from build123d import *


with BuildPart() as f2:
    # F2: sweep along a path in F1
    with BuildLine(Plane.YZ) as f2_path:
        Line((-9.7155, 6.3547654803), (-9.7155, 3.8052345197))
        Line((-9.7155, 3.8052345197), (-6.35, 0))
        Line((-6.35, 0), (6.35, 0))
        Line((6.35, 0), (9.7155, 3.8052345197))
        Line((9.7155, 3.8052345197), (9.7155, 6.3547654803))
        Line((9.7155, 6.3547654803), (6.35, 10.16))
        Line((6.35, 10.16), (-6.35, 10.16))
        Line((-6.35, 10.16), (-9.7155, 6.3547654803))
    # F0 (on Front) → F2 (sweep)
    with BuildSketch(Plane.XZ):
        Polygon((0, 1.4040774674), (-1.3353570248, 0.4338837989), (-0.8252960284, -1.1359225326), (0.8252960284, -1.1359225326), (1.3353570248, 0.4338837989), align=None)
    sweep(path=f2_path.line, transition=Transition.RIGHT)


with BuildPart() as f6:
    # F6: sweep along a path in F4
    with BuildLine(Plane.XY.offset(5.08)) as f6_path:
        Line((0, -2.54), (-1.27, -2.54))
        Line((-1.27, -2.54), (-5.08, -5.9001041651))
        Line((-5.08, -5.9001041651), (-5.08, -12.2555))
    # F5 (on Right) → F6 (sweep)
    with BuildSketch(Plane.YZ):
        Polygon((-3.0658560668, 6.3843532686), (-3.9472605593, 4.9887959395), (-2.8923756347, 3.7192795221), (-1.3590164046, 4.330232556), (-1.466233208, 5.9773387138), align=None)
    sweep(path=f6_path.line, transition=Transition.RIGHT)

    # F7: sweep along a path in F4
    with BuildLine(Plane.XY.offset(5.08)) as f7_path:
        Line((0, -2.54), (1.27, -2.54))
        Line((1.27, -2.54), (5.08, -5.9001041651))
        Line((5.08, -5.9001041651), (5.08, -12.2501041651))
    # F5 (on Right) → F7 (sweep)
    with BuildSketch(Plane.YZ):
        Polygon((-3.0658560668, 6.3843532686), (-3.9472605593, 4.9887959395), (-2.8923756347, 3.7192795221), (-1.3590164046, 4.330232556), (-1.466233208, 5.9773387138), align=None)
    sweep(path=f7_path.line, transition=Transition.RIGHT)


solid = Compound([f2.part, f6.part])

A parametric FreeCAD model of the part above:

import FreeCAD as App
import Part
import Sketcher
from FreeCAD import Vector
Q = App.Units.Quantity

doc = App.newDocument("Part")
params = doc.addObject("Spreadsheet::Sheet", "Params")
for row, (alias, value) in enumerate([
    ("sketch2_width", "0.5 in"),
    ("sketch2_length", "0.2 in"),
    ("sketch4_length", "0.2 in"),
    ("sketch4_width", "0.05 in"),
    ("sketch6_length", "0.2 in"),
    ("sketch6_width", "0.05 in"),
    ("sketch6_height", "0.25 in"),
], start=1):
    params.set(f"A{row}", alias)
    params.set(f"B{row}", "=" + value)
    params.setAlias(f"B{row}", alias)

body = doc.addObject("PartDesign::Body", "Body")

# Sketch on XZ plane
sketch1 = body.newObject("Sketcher::SketchObject", "Sketch")
sketch1.AttachmentSupport = (doc.getObject("XZ_Plane"), [""])
sketch1.MapMode = "FlatFace"
sketch1.addGeometry([
    Part.LineSegment(Vector(0, 1.4, 0), Vector(-1.3, 0.4, 0)),  # 0
    Part.LineSegment(Vector(-1.3, 0.4, 0), Vector(-0.8, -1.1, 0)),  # 1
    Part.LineSegment(Vector(-0.8, -1.1, 0), Vector(0.8, -1.1, 0)),  # 2
    Part.LineSegment(Vector(0.8, -1.1, 0), Vector(1.3, 0.4, 0)),  # 3
    Part.LineSegment(Vector(1.3, 0.4, 0), Vector(0, 1.4, 0)),  # 4
], False)
sketch1.addConstraint([
    Sketcher.Constraint("Coincident", 0, 2, 1, 1),
    Sketcher.Constraint("Coincident", 1, 2, 2, 1),
    Sketcher.Constraint("Coincident", 2, 2, 3, 1),
    Sketcher.Constraint("Coincident", 3, 2, 4, 1),
    Sketcher.Constraint("Coincident", 4, 2, 0, 1),
    Sketcher.Constraint("Horizontal", 2),
    Sketcher.Constraint("Symmetric", 0, 2, 3, 2, -2),
    Sketcher.Constraint("PointOnObject", 4, 2, -2),
    Sketcher.Constraint("Equal", 0, 1),
    Sketcher.Constraint("Equal", 1, 3),
    Sketcher.Constraint("Angle", 0, Q("-144 deg")),
    Sketcher.Constraint("Angle", 1, Q("-72 deg")),
    Sketcher.Constraint("DistanceY", 1, 2, 4, 2, Q("0.1 in")),
    Sketcher.Constraint("DistanceY", -1, 1, 0, 2, Q("0.433884 mm")),
])

# Sketch on YZ plane
sketch2 = body.newObject("Sketcher::SketchObject", "Sketch001")
sketch2.AttachmentSupport = (doc.getObject("YZ_Plane"), [""])
sketch2.MapMode = "FlatFace"
sketch2.addGeometry([
    Part.LineSegment(Vector(-9.7, 6.4, 0), Vector(-9.7, 3.8, 0)),  # 0
    Part.LineSegment(Vector(-9.7, 3.8, 0), Vector(-6.3, 0, 0)),  # 1
    Part.LineSegment(Vector(-6.3, 0, 0), Vector(6.3, 0, 0)),  # 2
    Part.LineSegment(Vector(6.3, 0, 0), Vector(9.7, 3.8, 0)),  # 3
    Part.LineSegment(Vector(9.7, 3.8, 0), Vector(9.7, 6.4, 0)),  # 4
    Part.LineSegment(Vector(9.7, 6.4, 0), Vector(6.3, 10.2, 0)),  # 5
    Part.LineSegment(Vector(6.3, 10.2, 0), Vector(-6.3, 10.2, 0)),  # 6
    Part.LineSegment(Vector(-6.3, 10.2, 0), Vector(-9.7, 6.4, 0)),  # 7
], False)
sketch2.addConstraint([
    Sketcher.Constraint("Coincident", 0, 2, 1, 1),
    Sketcher.Constraint("Coincident", 1, 2, 2, 1),
    Sketcher.Constraint("Coincident", 2, 2, 3, 1),
    Sketcher.Constraint("Coincident", 3, 2, 4, 1),
    Sketcher.Constraint("Coincident", 4, 2, 5, 1),
    Sketcher.Constraint("Coincident", 5, 2, 6, 1),
    Sketcher.Constraint("Coincident", 6, 2, 7, 1),
    Sketcher.Constraint("Coincident", 7, 2, 0, 1),
    Sketcher.Constraint("Vertical", 0),
    Sketcher.Constraint("Horizontal", 2),
    Sketcher.Constraint("Vertical", 4),
    Sketcher.Constraint("Horizontal", 6),
    Sketcher.Constraint("Symmetric", 1, 2, 2, 2, -1, 1),
    Sketcher.Constraint("Symmetric", 0, 2, 3, 2, -2),
    Sketcher.Constraint("Parallel", 1, 5),
    Sketcher.Constraint("Parallel", 3, 7),
    Sketcher.Constraint("Horizontal", 4, 2, 7, 2),
    Sketcher.Constraint("Vertical", 2, 2, 5, 2),
    Sketcher.Constraint("DistanceX", 2, 1, 2, 2, Q("0.5 in")),
    Sketcher.Constraint("Distance", 1, Q("0.2 in")),
    Sketcher.Constraint("DistanceY", -1, 1, 5, 2, Q("0.4 in")),
    Sketcher.Constraint("DistanceX", 0, 2, 3, 2, Q("0.765 in")),
])
sketch2.setExpression("Constraints[18]", "Params.sketch2_width")
sketch2.setExpression("Constraints[19]", "Params.sketch2_length")
doc.recompute()

additivepipe = body.newObject("PartDesign::AdditivePipe", "AdditivePipe")
additivepipe.Profile = sketch1
additivepipe.Spine = (sketch2, ["Edge1", "Edge2", "Edge3", "Edge4", "Edge5", "Edge6", "Edge7", "Edge8"])
additivepipe.Transition = "Right corner"
body2 = doc.addObject("PartDesign::Body", "Body001")

# Sketch on YZ plane
sketch3 = body2.newObject("Sketcher::SketchObject", "Sketch002")
sketch3.AttachmentSupport = (doc.getObject("YZ_Plane001"), [""])
sketch3.MapMode = "FlatFace"
sketch3.addGeometry([
    Part.LineSegment(Vector(-3.1, 6.4, 0), Vector(-3.9, 5, 0)),  # 0
    Part.LineSegment(Vector(-3.9, 5, 0), Vector(-2.9, 3.7, 0)),  # 1
    Part.LineSegment(Vector(-2.9, 3.7, 0), Vector(-1.4, 4.3, 0)),  # 2
    Part.LineSegment(Vector(-1.4, 4.3, 0), Vector(-1.5, 6, 0)),  # 3
    Part.LineSegment(Vector(-1.5, 6, 0), Vector(-3.1, 6.4, 0)),  # 4
], False)
sketch3.addConstraint([
    Sketcher.Constraint("Coincident", 0, 2, 1, 1),
    Sketcher.Constraint("Coincident", 1, 2, 2, 1),
    Sketcher.Constraint("Coincident", 2, 2, 3, 1),
    Sketcher.Constraint("Coincident", 3, 2, 4, 1),
    Sketcher.Constraint("Coincident", 4, 2, 0, 1),
    Sketcher.Constraint("Equal", 0, 1),
    Sketcher.Constraint("Equal", 1, 2),
    Sketcher.Constraint("Equal", 2, 3),
    Sketcher.Constraint("Equal", 3, 4),
    Sketcher.Constraint("DistanceY", 1, 2, 3, 2, Q("0.0889 in")),
    Sketcher.Constraint("DistanceX", 0, 2, -1, 1, Q("3.947261 mm")),
    Sketcher.Constraint("DistanceY", -1, 1, 1, 2, Q("3.71928 mm")),
    Sketcher.Constraint("DistanceX", 1, 2, 2, 2, Q("1.533359 mm")),
    Sketcher.Constraint("DistanceX", 4, 2, 2, 2, Q("1.70684 mm")),
    Sketcher.Constraint("DistanceY", 2, 2, 4, 2, Q("2.054121 mm")),
])

# Sketch on XY plane
sketch4 = body2.newObject("Sketcher::SketchObject", "Sketch003")
sketch4.AttachmentSupport = (doc.getObject("XY_Plane001"), [""])
sketch4.MapMode = "FlatFace"
sketch4.AttachmentOffset = App.Placement(Vector(0, 0, 0.2 * 25.4), App.Rotation())
sketch4.addGeometry([
    Part.LineSegment(Vector(0, -2.5, 0), Vector(-1.3, -2.5, 0)),
    Part.LineSegment(Vector(-1.3, -2.5, 0), Vector(-5.1, -5.9, 0)),
    Part.LineSegment(Vector(-5.1, -5.9, 0), Vector(-5.1, -12.3, 0)),
], False)
sketch4.addConstraint([
    Sketcher.Constraint("Coincident", 0, 2, 1, 1),
    Sketcher.Constraint("Coincident", 1, 2, 2, 1),
    Sketcher.Constraint("Horizontal", 0),
    Sketcher.Constraint("Vertical", 2),
    Sketcher.Constraint("PointOnObject", 0, 1, -2),
    Sketcher.Constraint("Distance", 1, Q("0.2 in")),
    Sketcher.Constraint("DistanceX", 0, 2, 0, 1, Q("0.05 in")),
    Sketcher.Constraint("DistanceY", 0, 1, -1, 1, Q("0.1 in")),
    Sketcher.Constraint("DistanceX", 1, 2, -1, 1, Q("0.2 in")),
    Sketcher.Constraint("DistanceY", 2, 2, -1, 1, Q("0.4825 in")),
])
sketch4.setExpression("Constraints[5]", "Params.sketch4_length")
sketch4.setExpression("Constraints[6]", "Params.sketch4_width")
doc.recompute()

additivepipe2 = body2.newObject("PartDesign::AdditivePipe", "AdditivePipe001")
additivepipe2.Profile = sketch3
additivepipe2.Spine = (sketch4, ["Edge1", "Edge2", "Edge3"])
additivepipe2.Transition = "Right corner"

# Sketch on YZ plane
sketch5 = body2.newObject("Sketcher::SketchObject", "Sketch004")
sketch5.AttachmentSupport = (doc.getObject("YZ_Plane001"), [""])
sketch5.MapMode = "FlatFace"
sketch5.addGeometry([
    Part.LineSegment(Vector(-3.1, 6.4, 0), Vector(-3.9, 5, 0)),  # 0
    Part.LineSegment(Vector(-3.9, 5, 0), Vector(-2.9, 3.7, 0)),  # 1
    Part.LineSegment(Vector(-2.9, 3.7, 0), Vector(-1.4, 4.3, 0)),  # 2
    Part.LineSegment(Vector(-1.4, 4.3, 0), Vector(-1.5, 6, 0)),  # 3
    Part.LineSegment(Vector(-1.5, 6, 0), Vector(-3.1, 6.4, 0)),  # 4
], False)
sketch5.addConstraint([
    Sketcher.Constraint("Coincident", 0, 2, 1, 1),
    Sketcher.Constraint("Coincident", 1, 2, 2, 1),
    Sketcher.Constraint("Coincident", 2, 2, 3, 1),
    Sketcher.Constraint("Coincident", 3, 2, 4, 1),
    Sketcher.Constraint("Coincident", 4, 2, 0, 1),
    Sketcher.Constraint("Equal", 0, 1),
    Sketcher.Constraint("Equal", 1, 2),
    Sketcher.Constraint("Equal", 2, 3),
    Sketcher.Constraint("Equal", 3, 4),
    Sketcher.Constraint("DistanceY", 1, 2, 3, 2, Q("0.0889 in")),
    Sketcher.Constraint("DistanceX", 0, 2, -1, 1, Q("3.947261 mm")),
    Sketcher.Constraint("DistanceY", -1, 1, 1, 2, Q("3.71928 mm")),
    Sketcher.Constraint("DistanceX", 1, 2, 2, 2, Q("1.533359 mm")),
    Sketcher.Constraint("DistanceX", 4, 2, 2, 2, Q("1.70684 mm")),
    Sketcher.Constraint("DistanceY", 2, 2, 4, 2, Q("2.054121 mm")),
])

# Sketch on XY plane
sketch6 = body2.newObject("Sketcher::SketchObject", "Sketch005")
sketch6.AttachmentSupport = (doc.getObject("XY_Plane001"), [""])
sketch6.MapMode = "FlatFace"
sketch6.AttachmentOffset = App.Placement(Vector(0, 0, 0.2 * 25.4), App.Rotation())
sketch6.addGeometry([
    Part.LineSegment(Vector(0, -2.5, 0), Vector(1.3, -2.5, 0)),
    Part.LineSegment(Vector(1.3, -2.5, 0), Vector(5.1, -5.9, 0)),
    Part.LineSegment(Vector(5.1, -5.9, 0), Vector(5.1, -12.3, 0)),
], False)
sketch6.addConstraint([
    Sketcher.Constraint("Coincident", 0, 2, 1, 1),
    Sketcher.Constraint("Coincident", 1, 2, 2, 1),
    Sketcher.Constraint("Horizontal", 0),
    Sketcher.Constraint("Vertical", 2),
    Sketcher.Constraint("PointOnObject", 0, 1, -2),
    Sketcher.Constraint("Distance", 1, Q("0.2 in")),
    Sketcher.Constraint("DistanceX", 0, 1, 0, 2, Q("0.05 in")),
    Sketcher.Constraint("DistanceY", 2, 2, 2, 1, Q("0.25 in")),
    Sketcher.Constraint("DistanceY", 0, 1, -1, 1, Q("0.1 in")),
    Sketcher.Constraint("DistanceX", -1, 1, 1, 2, Q("0.2 in")),
])
sketch6.setExpression("Constraints[5]", "Params.sketch6_length")
sketch6.setExpression("Constraints[6]", "Params.sketch6_width")
sketch6.setExpression("Constraints[7]", "Params.sketch6_height")
doc.recompute()

additivepipe3 = body2.newObject("PartDesign::AdditivePipe", "AdditivePipe002")
additivepipe3.Profile = sketch5
additivepipe3.Spine = (sketch6, ["Edge1", "Edge2", "Edge3"])
additivepipe3.Transition = "Right corner"

doc.recompute()
